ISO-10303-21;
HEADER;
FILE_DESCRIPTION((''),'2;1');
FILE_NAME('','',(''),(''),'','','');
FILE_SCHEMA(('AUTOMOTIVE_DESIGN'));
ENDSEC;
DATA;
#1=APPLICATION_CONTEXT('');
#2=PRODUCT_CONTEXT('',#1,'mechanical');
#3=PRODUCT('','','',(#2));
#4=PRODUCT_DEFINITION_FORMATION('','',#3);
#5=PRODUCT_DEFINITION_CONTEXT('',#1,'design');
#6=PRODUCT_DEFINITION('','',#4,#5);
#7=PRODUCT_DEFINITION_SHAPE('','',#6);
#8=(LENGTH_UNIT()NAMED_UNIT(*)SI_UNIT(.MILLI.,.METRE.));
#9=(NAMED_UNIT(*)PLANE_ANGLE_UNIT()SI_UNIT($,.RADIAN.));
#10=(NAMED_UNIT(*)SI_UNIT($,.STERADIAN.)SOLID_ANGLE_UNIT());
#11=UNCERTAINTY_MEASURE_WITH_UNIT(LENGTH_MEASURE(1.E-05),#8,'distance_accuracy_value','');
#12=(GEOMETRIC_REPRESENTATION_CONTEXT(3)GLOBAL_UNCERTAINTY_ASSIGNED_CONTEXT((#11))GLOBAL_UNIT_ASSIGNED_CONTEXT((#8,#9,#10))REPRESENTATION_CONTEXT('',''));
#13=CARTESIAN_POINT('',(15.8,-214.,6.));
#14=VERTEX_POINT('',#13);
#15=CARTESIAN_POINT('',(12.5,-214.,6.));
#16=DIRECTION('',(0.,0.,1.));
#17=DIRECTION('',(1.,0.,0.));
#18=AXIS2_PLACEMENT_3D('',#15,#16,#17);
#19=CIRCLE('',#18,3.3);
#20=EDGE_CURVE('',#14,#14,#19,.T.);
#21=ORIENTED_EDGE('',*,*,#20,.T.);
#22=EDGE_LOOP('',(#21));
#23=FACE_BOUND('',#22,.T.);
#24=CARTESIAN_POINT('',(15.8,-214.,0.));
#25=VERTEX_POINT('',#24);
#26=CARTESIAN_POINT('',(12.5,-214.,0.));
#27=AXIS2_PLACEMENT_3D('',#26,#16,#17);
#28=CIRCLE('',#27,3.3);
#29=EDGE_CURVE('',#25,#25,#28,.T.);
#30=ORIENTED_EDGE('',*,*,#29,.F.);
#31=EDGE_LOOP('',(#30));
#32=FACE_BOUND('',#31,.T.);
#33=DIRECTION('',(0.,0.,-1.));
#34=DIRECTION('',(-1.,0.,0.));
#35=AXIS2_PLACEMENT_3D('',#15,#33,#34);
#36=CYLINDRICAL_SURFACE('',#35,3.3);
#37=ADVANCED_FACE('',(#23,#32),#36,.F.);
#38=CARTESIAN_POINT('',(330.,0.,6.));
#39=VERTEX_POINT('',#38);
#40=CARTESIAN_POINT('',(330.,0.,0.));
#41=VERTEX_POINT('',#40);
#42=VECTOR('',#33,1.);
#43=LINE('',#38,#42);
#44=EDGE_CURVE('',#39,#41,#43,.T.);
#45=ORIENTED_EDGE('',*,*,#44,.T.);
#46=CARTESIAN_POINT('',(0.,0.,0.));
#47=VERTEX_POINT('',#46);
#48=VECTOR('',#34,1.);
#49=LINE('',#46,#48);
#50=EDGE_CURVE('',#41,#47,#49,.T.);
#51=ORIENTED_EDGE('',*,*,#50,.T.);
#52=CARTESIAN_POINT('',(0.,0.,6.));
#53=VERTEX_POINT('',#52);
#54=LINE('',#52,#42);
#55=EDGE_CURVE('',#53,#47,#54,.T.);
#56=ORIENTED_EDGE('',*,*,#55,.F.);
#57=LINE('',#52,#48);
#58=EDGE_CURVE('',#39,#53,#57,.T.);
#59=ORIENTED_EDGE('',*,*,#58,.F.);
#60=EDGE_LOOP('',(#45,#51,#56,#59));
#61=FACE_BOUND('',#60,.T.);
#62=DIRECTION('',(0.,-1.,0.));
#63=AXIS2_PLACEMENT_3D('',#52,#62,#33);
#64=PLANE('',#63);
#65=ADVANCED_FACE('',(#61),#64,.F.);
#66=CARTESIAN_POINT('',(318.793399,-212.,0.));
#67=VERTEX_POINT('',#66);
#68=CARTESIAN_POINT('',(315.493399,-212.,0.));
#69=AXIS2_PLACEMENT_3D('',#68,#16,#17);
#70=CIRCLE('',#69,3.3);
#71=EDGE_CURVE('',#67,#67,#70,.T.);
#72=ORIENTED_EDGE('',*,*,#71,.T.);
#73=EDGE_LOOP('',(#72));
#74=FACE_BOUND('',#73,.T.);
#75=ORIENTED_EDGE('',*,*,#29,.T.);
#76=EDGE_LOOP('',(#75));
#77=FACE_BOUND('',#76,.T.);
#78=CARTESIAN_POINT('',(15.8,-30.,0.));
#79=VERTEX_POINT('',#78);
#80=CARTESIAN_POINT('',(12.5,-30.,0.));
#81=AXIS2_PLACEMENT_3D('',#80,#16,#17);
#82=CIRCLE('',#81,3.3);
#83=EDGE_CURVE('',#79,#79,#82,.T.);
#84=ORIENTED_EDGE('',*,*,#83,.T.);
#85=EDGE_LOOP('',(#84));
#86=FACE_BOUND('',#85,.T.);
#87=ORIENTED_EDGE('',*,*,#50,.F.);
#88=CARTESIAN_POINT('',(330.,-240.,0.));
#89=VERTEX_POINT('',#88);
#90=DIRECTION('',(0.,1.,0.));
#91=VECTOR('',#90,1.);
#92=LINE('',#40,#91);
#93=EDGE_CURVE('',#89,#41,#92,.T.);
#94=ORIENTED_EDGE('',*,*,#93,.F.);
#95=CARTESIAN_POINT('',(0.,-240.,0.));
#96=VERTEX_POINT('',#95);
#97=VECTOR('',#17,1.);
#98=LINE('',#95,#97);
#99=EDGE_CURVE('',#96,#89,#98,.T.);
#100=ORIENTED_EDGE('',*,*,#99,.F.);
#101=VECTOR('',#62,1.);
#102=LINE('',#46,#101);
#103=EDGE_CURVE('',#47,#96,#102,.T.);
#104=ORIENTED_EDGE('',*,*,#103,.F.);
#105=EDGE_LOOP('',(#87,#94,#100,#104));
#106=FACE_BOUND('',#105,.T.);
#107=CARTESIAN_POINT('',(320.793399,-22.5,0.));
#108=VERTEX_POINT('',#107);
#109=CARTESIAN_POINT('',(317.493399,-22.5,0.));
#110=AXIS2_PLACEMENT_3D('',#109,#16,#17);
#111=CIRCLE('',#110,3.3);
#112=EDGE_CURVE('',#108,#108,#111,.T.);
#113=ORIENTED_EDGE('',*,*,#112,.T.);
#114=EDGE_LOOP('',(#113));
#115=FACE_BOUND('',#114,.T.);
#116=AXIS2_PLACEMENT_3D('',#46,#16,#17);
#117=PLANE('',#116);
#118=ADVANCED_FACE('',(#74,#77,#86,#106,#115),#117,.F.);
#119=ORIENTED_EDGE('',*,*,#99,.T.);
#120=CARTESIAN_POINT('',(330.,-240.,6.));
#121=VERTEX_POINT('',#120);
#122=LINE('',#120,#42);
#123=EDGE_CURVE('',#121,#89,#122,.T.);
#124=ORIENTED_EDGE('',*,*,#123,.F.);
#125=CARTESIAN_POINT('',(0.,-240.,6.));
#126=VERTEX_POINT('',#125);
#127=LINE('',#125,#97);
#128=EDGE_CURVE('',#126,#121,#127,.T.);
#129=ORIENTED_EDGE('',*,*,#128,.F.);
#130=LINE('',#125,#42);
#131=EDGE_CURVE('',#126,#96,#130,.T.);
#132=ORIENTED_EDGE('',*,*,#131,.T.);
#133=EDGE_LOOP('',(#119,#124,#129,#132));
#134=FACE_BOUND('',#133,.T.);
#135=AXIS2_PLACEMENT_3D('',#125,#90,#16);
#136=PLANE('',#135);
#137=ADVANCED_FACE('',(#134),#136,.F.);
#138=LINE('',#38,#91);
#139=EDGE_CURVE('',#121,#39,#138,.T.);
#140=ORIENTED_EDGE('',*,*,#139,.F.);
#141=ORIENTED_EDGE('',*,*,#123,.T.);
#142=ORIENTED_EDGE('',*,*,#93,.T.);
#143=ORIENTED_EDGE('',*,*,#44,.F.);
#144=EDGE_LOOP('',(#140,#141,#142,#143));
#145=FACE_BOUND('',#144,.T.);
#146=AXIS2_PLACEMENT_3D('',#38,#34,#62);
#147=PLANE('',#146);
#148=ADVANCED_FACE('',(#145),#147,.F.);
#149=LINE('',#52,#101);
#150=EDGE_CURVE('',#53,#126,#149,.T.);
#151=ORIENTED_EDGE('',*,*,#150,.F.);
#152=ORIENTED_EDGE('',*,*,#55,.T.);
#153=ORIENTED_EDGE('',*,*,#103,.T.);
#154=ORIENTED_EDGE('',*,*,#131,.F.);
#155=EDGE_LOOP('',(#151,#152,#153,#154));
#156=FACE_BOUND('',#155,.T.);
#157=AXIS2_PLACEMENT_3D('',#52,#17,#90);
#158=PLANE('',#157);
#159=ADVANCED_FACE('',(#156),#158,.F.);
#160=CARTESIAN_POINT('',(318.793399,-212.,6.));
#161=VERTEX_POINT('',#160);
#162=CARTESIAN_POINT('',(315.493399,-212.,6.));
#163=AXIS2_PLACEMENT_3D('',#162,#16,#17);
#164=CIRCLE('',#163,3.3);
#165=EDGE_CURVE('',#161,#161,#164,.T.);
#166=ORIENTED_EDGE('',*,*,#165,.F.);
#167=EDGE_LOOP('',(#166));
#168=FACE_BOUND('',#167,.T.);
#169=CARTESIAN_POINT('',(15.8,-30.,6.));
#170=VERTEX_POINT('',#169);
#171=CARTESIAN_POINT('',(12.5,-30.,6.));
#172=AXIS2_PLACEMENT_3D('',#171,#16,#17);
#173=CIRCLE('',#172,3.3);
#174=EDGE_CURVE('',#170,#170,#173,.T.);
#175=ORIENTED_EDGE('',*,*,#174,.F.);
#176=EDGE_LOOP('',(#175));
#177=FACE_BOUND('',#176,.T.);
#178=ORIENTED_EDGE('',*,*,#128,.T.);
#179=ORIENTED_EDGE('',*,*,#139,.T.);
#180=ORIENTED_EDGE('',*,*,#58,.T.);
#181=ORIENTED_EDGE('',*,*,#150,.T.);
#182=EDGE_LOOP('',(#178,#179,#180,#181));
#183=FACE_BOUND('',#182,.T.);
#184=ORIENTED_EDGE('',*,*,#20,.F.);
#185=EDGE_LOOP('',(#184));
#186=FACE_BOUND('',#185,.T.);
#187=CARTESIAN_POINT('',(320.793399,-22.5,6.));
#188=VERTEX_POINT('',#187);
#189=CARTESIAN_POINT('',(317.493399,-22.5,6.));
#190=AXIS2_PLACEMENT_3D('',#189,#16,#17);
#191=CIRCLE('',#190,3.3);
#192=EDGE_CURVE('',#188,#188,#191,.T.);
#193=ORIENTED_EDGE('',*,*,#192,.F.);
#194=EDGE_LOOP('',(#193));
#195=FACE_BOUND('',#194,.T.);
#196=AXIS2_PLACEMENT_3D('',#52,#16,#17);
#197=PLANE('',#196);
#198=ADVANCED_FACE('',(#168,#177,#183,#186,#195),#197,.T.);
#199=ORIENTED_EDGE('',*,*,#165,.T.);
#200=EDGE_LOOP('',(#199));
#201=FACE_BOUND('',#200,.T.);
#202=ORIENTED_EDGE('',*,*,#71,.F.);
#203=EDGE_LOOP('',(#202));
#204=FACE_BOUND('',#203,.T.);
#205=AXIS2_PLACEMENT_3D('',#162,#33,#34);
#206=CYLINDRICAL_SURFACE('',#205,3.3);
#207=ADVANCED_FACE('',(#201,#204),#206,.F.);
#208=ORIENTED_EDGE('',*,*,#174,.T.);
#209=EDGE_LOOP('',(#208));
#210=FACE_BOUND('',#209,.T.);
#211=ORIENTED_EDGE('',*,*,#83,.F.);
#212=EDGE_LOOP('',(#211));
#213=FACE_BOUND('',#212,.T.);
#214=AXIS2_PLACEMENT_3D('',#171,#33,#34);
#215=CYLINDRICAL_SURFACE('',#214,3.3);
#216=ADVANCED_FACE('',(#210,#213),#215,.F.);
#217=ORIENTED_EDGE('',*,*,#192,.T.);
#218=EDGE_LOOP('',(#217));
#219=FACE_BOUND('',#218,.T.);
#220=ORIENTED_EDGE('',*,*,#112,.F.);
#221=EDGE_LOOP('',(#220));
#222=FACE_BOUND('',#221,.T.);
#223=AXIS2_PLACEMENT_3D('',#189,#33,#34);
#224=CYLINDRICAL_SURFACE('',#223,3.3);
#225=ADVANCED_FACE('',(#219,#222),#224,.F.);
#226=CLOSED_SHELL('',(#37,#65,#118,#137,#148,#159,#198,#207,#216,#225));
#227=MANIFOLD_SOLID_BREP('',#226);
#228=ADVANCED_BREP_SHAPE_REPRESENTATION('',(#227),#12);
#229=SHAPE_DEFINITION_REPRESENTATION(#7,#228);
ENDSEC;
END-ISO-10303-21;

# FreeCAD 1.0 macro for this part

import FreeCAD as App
import Part
import Sketcher

doc = App.newDocument("Part")
body = doc.addObject("PartDesign::Body", "Body")

# Sketch on XY plane
sketch1 = body.newObject("Sketcher::SketchObject", "Sketch")
sketch1.AttachmentSupport = (doc.getObject("XY_Plane"), [""])
sketch1.MapMode = "FlatFace"
sketch1.addGeometry([
    Part.LineSegment(App.Vector(0, 0, 0), App.Vector(0, -240, 0)),  # 0
    Part.LineSegment(App.Vector(0, -240, 0), App.Vector(330, -240, 0)),  # 1
    Part.LineSegment(App.Vector(330, -240, 0), App.Vector(330, 0, 0)),  # 2
    Part.LineSegment(App.Vector(330, 0, 0), App.Vector(0, 0, 0)),  # 3
    Part.Circle(App.Vector(12.5, -214, 0), App.Vector(0, 0, 1), 3.3),  # 4
    Part.Circle(App.Vector(315.5, -212, 0), App.Vector(0, 0, 1), 3.3),  # 5
    Part.Circle(App.Vector(12.5, -30, 0), App.Vector(0, 0, 1), 3.3),  # 6
    Part.Circle(App.Vector(317.5, -22.5, 0), App.Vector(0, 0, 1), 3.3),  # 7
], False)
sketch1.addConstraint([
    Sketcher.Constraint("Coincident", 0, 2, 1, 1),
    Sketcher.Constraint("Coincident", 1, 2, 2, 1),
    Sketcher.Constraint("Coincident", 2, 2, 3, 1),
    Sketcher.Constraint("Coincident", 3, 2, 0, 1),
    Sketcher.Constraint("Vertical", 0),
    Sketcher.Constraint("Horizontal", 1),
    Sketcher.Constraint("Vertical", 2),
    Sketcher.Constraint("Horizontal", 3),
    Sketcher.Constraint("Coincident", 3, 2, -1, 1),
    Sketcher.Constraint("Equal", 4, 5),
    Sketcher.Constraint("Equal", 5, 6),
    Sketcher.Constraint("Equal", 6, 7),
    Sketcher.Constraint("Vertical", 4, 3, 6, 3),
    Sketcher.Constraint("Diameter", 4, 6.6),
    Sketcher.Constraint("DistanceX", 1, 1, 1, 2, 330.0),
    Sketcher.Constraint("DistanceY", 0, 2, 0, 1, 240.0),
    Sketcher.Constraint("DistanceY", 4, 3, -1, 1, 214.0),
    Sketcher.Constraint("DistanceY", 5, 3, -1, 1, 212.0),
    Sketcher.Constraint("DistanceY", 6, 3, -1, 1, 30.0),
    Sketcher.Constraint("DistanceX", 5, 3, 7, 3, 2.0),
    Sketcher.Constraint("DistanceX", -1, 1, 4, 3, 12.5),
    Sketcher.Constraint("DistanceY", 7, 3, -1, 1, 22.5),
    Sketcher.Constraint("DistanceX", -1, 1, 5, 3, 315.493399),
])
pad1 = body.newObject("PartDesign::Pad", "Pad")
pad1.Profile = sketch1
pad1.Length = 6

doc.recompute()
